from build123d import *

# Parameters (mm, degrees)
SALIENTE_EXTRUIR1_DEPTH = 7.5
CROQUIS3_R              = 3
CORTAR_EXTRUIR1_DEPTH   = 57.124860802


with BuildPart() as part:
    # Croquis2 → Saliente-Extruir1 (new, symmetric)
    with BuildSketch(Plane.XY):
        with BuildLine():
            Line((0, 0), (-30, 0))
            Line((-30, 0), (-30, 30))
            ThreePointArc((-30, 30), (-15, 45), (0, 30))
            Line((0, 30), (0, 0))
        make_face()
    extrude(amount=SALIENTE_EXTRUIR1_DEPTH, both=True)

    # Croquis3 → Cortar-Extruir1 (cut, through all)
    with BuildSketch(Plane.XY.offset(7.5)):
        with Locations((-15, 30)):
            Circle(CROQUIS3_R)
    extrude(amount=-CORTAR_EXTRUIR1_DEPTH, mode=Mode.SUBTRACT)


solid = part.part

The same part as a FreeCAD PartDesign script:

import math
import FreeCAD as App
import Part
import Sketcher

doc = App.newDocument("Part")
params = doc.addObject("Spreadsheet::Sheet", "Params")
for row, (alias, value) in enumerate([
    ("sketch1_radius", "15 mm"),
    ("pad1_length", "15 mm"),
    ("sketch2_diameter", "6 mm"),
], start=1):
    params.set(f"A{row}", alias)
    params.set(f"B{row}", "=" + value)
    params.setAlias(f"B{row}", alias)

body = doc.addObject("PartDesign::Body", "Body")

sketch1 = doc.addObject("Sketcher::SketchObject", "Sketch")
body.addObject(sketch1)
sketch1.AttachmentSupport = (doc.XY_Plane, [""])
sketch1.MapMode = "FlatFace"
sketch1.addGeometry([
    Part.LineSegment(App.Vector(-30, 0, 0), App.Vector(0, 0, 0)),
    Part.LineSegment(App.Vector(0, 0, 0), App.Vector(0, 30, 0)),
    Part.ArcOfCircle(Part.Circle(App.Vector(-15, 30, 0), App.Vector(0, 0, 1), 15), math.radians(0), math.radians(180)),
    Part.LineSegment(App.Vector(-30, 30, 0), App.Vector(-30, 0, 0)),
], False)
sketch1.addConstraint([
    Sketcher.Constraint("Coincident", 0, 2, 1, 1),
    Sketcher.Constraint("Tangent", 1, 2, 2, 1),
    Sketcher.Constraint("Tangent", 2, 2, 3, 1),
    Sketcher.Constraint("Coincident", 3, 2, 0, 1),
    Sketcher.Constraint("Horizontal", 0),
    Sketcher.Constraint("Vertical", 1),
    Sketcher.Constraint("Vertical", 3),
    Sketcher.Constraint("Coincident", 0, 2, -1, 1),
    Sketcher.Constraint("Equal", 0, 1),
    Sketcher.Constraint("Radius", 2, 15.0),
])
sketch1.setExpression("Constraints[9]", "Params.sketch1_radius")
pad1 = doc.addObject("PartDesign::Pad", "Pad")
body.addObject(pad1)
pad1.Profile = sketch1
pad1.setExpression("Length", "Params.pad1_length")
pad1.Midplane = True

sketch2 = doc.addObject("Sketcher::SketchObject", "Sketch001")
body.addObject(sketch2)
sketch2.AttachmentSupport = (doc.XY_Plane, [""])
sketch2.MapMode = "FlatFace"
sketch2.AttachmentOffset = App.Placement(App.Vector(0, 0, 7.5), App.Rotation())
sketch2.addGeometry(Part.Circle(App.Vector(-15, 30, 0), App.Vector(0, 0, 1), 3), False)
sketch2.addConstraint([
    Sketcher.Constraint("Diameter", 0, 6.0),
    Sketcher.Constraint("DistanceX", 0, 3, -1, 1, 15.0),
    Sketcher.Constraint("DistanceY", -1, 1, 0, 3, 30.0),
])
sketch2.setExpression("Constraints[0]", "Params.sketch2_diameter")
pocket1 = doc.addObject("PartDesign::Pocket", "Pocket")
body.addObject(pocket1)
pocket1.Profile = sketch2
pocket1.Type = "ThroughAll"

doc.recompute()
